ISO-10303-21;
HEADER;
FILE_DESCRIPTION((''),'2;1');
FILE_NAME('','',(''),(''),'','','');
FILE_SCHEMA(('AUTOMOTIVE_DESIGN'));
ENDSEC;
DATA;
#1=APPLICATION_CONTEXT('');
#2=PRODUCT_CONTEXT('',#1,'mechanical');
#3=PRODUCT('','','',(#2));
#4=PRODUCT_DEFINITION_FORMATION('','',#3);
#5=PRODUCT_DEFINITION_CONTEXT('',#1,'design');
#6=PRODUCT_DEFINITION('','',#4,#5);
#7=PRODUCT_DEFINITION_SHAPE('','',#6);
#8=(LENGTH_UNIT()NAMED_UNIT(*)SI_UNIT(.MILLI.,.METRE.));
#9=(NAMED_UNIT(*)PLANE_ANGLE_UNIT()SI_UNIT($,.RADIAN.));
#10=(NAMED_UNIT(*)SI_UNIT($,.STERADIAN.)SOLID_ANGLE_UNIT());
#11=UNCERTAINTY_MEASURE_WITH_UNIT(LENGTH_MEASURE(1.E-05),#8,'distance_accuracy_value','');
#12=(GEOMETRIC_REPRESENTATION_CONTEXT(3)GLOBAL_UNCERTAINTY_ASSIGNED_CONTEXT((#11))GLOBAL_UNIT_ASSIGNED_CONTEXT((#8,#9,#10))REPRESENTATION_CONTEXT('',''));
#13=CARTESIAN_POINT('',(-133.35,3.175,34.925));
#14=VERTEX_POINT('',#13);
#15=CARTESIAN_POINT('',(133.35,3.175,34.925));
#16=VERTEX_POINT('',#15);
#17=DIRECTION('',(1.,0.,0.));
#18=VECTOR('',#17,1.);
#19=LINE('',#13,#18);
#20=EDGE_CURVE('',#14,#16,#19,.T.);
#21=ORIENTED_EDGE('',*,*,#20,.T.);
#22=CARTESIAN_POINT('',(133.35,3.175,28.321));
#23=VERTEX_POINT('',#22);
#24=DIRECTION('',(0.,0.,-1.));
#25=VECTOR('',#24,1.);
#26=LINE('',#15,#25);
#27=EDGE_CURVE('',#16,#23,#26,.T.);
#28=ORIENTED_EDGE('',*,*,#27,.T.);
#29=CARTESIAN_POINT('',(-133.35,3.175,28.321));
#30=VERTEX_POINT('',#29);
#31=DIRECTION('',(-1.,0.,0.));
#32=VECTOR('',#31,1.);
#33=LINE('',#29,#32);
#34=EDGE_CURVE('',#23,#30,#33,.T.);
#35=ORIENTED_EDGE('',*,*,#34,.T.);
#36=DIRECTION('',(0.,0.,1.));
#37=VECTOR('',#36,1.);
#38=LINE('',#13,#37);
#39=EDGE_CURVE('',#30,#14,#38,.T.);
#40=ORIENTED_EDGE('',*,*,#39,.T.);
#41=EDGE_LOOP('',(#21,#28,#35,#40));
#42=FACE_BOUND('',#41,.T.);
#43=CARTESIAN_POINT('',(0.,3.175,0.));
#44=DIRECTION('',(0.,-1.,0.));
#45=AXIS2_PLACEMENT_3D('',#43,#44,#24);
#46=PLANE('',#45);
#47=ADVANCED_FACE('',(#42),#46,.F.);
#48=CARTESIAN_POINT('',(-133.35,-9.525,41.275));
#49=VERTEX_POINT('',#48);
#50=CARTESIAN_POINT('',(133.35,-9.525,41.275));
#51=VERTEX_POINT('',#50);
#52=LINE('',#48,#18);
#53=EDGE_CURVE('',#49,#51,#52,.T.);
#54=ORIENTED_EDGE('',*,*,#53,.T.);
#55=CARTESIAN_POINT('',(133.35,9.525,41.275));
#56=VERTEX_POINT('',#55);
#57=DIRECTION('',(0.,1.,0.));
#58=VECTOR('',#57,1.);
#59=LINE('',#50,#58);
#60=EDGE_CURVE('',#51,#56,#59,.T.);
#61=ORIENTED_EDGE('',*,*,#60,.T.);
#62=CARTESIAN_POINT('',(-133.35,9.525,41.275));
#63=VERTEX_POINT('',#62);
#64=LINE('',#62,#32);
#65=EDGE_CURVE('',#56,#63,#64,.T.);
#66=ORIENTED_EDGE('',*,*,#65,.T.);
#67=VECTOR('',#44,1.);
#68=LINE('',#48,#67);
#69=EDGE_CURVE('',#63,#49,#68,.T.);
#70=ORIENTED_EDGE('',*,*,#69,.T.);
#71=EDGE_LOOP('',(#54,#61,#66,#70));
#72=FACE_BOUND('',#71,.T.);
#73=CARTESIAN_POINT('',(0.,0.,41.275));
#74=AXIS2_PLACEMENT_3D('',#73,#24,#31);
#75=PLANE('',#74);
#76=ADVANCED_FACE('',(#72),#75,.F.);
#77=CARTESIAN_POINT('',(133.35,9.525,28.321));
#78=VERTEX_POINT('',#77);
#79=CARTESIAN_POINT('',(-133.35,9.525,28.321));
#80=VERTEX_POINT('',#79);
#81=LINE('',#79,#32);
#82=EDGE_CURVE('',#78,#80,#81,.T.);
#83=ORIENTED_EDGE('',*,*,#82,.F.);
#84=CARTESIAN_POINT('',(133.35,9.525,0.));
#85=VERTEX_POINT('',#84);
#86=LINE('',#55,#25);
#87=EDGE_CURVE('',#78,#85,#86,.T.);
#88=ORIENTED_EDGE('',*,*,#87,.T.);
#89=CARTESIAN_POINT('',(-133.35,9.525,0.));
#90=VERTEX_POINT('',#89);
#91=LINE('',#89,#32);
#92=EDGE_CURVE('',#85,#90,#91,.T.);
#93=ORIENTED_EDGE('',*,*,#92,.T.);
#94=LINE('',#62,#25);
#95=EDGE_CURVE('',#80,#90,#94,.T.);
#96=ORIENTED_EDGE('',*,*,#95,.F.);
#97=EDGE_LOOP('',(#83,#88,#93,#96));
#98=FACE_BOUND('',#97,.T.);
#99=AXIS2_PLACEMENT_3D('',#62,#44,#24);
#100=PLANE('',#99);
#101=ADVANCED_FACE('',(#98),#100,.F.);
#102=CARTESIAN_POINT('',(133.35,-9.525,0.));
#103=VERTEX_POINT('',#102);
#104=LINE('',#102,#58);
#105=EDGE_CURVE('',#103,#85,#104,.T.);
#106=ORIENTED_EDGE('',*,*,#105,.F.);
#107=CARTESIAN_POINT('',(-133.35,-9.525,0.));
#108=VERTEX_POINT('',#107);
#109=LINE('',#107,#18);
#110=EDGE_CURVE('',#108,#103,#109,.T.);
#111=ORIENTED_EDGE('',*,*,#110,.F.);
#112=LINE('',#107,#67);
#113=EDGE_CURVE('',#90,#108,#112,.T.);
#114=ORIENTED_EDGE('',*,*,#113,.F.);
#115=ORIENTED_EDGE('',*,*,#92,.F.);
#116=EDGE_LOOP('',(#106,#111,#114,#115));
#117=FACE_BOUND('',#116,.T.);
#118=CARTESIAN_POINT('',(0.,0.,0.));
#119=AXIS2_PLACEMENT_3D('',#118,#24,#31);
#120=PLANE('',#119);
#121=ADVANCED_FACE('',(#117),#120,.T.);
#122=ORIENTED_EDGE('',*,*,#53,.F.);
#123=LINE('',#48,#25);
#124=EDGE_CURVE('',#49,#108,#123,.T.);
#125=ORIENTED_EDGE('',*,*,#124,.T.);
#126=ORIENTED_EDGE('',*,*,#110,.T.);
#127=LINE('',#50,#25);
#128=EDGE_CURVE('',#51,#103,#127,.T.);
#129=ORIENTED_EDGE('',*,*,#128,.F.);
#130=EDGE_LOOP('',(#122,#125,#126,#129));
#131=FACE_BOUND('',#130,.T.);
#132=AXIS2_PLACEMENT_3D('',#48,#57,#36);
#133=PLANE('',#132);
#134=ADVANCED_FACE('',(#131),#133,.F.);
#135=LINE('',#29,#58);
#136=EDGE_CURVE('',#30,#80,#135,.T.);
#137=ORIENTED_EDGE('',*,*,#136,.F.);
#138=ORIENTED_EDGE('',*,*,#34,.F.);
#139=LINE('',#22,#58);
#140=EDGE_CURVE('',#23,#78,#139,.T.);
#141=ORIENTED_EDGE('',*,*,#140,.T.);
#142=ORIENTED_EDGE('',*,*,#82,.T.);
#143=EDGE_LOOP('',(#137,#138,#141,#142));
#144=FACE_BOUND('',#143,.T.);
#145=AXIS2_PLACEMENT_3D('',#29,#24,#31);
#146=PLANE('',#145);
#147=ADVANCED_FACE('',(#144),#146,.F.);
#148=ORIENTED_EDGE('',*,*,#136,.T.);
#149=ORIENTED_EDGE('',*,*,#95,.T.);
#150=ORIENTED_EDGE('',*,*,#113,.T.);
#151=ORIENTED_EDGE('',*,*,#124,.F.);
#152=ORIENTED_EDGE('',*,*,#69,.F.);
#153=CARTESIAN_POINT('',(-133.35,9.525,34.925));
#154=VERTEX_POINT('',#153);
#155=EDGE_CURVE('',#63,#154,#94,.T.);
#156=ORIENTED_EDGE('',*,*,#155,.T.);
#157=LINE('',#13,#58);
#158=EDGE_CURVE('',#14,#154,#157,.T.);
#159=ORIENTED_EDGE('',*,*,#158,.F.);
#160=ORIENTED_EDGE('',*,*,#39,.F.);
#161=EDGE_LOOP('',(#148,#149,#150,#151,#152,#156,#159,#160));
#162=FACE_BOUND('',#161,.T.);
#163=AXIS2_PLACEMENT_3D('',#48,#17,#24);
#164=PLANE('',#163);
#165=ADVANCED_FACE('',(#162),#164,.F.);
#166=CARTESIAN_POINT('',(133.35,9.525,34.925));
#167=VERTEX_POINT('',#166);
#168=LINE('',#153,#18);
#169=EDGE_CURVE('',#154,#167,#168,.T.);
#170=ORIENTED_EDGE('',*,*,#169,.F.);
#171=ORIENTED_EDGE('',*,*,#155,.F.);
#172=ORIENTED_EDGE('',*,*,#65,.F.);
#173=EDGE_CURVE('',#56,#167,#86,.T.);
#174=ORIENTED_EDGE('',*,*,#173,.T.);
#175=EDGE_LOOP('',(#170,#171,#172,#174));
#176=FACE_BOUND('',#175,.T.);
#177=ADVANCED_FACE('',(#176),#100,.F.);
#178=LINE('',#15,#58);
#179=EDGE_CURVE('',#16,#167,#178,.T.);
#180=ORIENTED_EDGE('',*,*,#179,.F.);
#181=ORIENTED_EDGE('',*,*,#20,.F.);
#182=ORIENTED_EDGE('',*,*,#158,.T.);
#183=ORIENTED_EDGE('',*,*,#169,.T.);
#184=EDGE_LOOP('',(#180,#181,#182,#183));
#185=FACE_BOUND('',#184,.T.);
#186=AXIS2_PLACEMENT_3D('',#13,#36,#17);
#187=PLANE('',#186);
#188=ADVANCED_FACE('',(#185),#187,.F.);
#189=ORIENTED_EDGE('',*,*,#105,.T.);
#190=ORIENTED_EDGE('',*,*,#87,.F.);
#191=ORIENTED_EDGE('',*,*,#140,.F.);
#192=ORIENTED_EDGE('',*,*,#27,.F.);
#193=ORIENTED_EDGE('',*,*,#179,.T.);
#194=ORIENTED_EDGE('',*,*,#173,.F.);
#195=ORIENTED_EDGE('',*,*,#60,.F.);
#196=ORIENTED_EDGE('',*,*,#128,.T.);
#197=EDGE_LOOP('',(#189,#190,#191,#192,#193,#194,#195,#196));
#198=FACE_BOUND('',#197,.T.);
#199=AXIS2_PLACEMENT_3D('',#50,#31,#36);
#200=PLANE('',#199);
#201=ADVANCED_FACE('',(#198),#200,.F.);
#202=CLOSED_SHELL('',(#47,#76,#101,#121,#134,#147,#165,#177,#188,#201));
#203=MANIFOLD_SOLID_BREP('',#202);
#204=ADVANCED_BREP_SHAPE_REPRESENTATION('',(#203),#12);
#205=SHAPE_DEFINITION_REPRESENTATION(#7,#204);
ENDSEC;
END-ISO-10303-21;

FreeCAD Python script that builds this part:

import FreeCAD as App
import Part
import Sketcher
from FreeCAD import Vector
Q = App.Units.Quantity


def add_polygon(sketch, points):
    """Adds a closed chain of lines whose ends are joined by coincident constraints."""
    first, n = sketch.GeometryCount, len(points)
    for a, b in zip(points, points[1:] + points[:1]):
        sketch.addGeometry(Part.LineSegment(App.Vector(*a, 0), App.Vector(*b, 0)), False)
    for i in range(n):
        sketch.addConstraint(Sketcher.Constraint("Coincident", first + i, 2, first + (i + 1) % n, 1))

doc = App.newDocument("Part")
body = doc.addObject("PartDesign::Body", "Body")

sketch1 = doc.addObject("Sketcher::SketchObject", "Sketch")
body.addObject(sketch1)
sketch1.AttachmentSupport = (doc.XY_Plane, [""])
sketch1.MapMode = "FlatFace"
add_polygon(sketch1, [(-133, 10), (-133, -10), (133, -10), (133, 10)])
sketch1.addConstraint(Sketcher.Constraint("Vertical", 0))
sketch1.addConstraint(Sketcher.Constraint("Horizontal", 1))
sketch1.addConstraint(Sketcher.Constraint("Vertical", 2))
sketch1.addConstraint(Sketcher.Constraint("Horizontal", 3))
sketch1.addConstraint(Sketcher.Constraint("Symmetric", 0, 2, 2, 2, -1, 1))
sketch1.addConstraint(Sketcher.Constraint("DistanceX", 1, 1, 1, 2, Q("10.5 in")))
sketch1.addConstraint(Sketcher.Constraint("DistanceY", 0, 2, 0, 1, Q("0.75 in")))
pad1 = doc.addObject("PartDesign::Pad", "Pad")
body.addObject(pad1)
pad1.Profile = sketch1
pad1.Length = Q("1.625 in")

sketch2 = doc.addObject("Sketcher::SketchObject", "Sketch001")
body.addObject(sketch2)
sketch2.AttachmentSupport = (doc.XZ_Plane, [""])
sketch2.MapMode = "FlatFace"
sketch2.AttachmentOffset = App.Placement(Vector(0, 0, -0.375 * 25.4), App.Rotation())
add_polygon(sketch2, [(-133, 28), (-133, 35), (133, 35), (133, 28)])
sketch2.addConstraint(Sketcher.Constraint("Vertical", 0))
sketch2.addConstraint(Sketcher.Constraint("Horizontal", 1))
sketch2.addConstraint(Sketcher.Constraint("Vertical", 2))
sketch2.addConstraint(Sketcher.Constraint("Horizontal", 3))
sketch2.addConstraint(Sketcher.Constraint("DistanceX", 1, 1, 1, 2, Q("10.5 in")))
sketch2.addConstraint(Sketcher.Constraint("DistanceY", 0, 1, 0, 2, Q("0.26 in")))
sketch2.addConstraint(Sketcher.Constraint("DistanceX", 0, 2, -1, 1, Q("5.25 in")))
sketch2.addConstraint(Sketcher.Constraint("DistanceY", -1, 1, 0, 2, Q("1.375 in")))
pocket1 = doc.addObject("PartDesign::Pocket", "Pocket")
body.addObject(pocket1)
pocket1.Profile = sketch2
pocket1.Length = Q("0.25 in")
pocket1.Reversed = True

doc.recompute()
